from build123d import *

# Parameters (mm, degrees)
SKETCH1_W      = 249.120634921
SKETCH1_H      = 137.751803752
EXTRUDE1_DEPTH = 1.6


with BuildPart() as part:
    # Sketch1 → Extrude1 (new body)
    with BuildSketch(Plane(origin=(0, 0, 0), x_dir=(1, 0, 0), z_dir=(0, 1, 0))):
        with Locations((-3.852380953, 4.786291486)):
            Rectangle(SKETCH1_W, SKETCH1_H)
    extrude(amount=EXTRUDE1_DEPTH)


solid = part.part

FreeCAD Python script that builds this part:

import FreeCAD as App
import Part
import Sketcher
Q = App.Units.Quantity


def add_polygon(sketch, points):
    """Adds a closed chain of lines whose ends are joined by coincident constraints."""
    first, n = sketch.GeometryCount, len(points)
    for a, b in zip(points, points[1:] + points[:1]):
        sketch.addGeometry(Part.LineSegment(App.Vector(*a, 0), App.Vector(*b, 0)), False)
    for i in range(n):
        sketch.addConstraint(Sketcher.Constraint("Coincident", first + i, 2, first + (i + 1) % n, 1))

doc = App.newDocument("Part")
body = doc.addObject("PartDesign::Body", "Body")

# Sketch on XZ plane
sketch1 = body.newObject("Sketcher::SketchObject", "Sketch")
sketch1.AttachmentSupport = (doc.getObject("XZ_Plane"), [""])
sketch1.MapMode = "FlatFace"
add_polygon(sketch1, [(-128.412698, -73.662193), (-128.412698, 64.08961), (120.707937, 64.08961), (120.707937, -73.662193)])  # lines 0-3
sketch1.addConstraint([
    Sketcher.Constraint("Vertical", 0),
    Sketcher.Constraint("Horizontal", 1),
    Sketcher.Constraint("Vertical", 2),
    Sketcher.Constraint("Horizontal", 3),
    Sketcher.Constraint("DistanceX", 0, 2, -1, 1, Q("128.412698 mm")),
    Sketcher.Constraint("DistanceX", 1, 1, 1, 2, Q("249.120635 mm")),
    Sketcher.Constraint("DistanceY", 0, 1, 0, 2, Q("137.751804 mm")),
    Sketcher.Constraint("DistanceY", -1, 1, 0, 2, Q("64.08961 mm")),
])
pad1 = body.newObject("PartDesign::Pad", "Pad")
pad1.Profile = sketch1
pad1.Length = 1.6
pad1.Reversed = True

doc.recompute()
